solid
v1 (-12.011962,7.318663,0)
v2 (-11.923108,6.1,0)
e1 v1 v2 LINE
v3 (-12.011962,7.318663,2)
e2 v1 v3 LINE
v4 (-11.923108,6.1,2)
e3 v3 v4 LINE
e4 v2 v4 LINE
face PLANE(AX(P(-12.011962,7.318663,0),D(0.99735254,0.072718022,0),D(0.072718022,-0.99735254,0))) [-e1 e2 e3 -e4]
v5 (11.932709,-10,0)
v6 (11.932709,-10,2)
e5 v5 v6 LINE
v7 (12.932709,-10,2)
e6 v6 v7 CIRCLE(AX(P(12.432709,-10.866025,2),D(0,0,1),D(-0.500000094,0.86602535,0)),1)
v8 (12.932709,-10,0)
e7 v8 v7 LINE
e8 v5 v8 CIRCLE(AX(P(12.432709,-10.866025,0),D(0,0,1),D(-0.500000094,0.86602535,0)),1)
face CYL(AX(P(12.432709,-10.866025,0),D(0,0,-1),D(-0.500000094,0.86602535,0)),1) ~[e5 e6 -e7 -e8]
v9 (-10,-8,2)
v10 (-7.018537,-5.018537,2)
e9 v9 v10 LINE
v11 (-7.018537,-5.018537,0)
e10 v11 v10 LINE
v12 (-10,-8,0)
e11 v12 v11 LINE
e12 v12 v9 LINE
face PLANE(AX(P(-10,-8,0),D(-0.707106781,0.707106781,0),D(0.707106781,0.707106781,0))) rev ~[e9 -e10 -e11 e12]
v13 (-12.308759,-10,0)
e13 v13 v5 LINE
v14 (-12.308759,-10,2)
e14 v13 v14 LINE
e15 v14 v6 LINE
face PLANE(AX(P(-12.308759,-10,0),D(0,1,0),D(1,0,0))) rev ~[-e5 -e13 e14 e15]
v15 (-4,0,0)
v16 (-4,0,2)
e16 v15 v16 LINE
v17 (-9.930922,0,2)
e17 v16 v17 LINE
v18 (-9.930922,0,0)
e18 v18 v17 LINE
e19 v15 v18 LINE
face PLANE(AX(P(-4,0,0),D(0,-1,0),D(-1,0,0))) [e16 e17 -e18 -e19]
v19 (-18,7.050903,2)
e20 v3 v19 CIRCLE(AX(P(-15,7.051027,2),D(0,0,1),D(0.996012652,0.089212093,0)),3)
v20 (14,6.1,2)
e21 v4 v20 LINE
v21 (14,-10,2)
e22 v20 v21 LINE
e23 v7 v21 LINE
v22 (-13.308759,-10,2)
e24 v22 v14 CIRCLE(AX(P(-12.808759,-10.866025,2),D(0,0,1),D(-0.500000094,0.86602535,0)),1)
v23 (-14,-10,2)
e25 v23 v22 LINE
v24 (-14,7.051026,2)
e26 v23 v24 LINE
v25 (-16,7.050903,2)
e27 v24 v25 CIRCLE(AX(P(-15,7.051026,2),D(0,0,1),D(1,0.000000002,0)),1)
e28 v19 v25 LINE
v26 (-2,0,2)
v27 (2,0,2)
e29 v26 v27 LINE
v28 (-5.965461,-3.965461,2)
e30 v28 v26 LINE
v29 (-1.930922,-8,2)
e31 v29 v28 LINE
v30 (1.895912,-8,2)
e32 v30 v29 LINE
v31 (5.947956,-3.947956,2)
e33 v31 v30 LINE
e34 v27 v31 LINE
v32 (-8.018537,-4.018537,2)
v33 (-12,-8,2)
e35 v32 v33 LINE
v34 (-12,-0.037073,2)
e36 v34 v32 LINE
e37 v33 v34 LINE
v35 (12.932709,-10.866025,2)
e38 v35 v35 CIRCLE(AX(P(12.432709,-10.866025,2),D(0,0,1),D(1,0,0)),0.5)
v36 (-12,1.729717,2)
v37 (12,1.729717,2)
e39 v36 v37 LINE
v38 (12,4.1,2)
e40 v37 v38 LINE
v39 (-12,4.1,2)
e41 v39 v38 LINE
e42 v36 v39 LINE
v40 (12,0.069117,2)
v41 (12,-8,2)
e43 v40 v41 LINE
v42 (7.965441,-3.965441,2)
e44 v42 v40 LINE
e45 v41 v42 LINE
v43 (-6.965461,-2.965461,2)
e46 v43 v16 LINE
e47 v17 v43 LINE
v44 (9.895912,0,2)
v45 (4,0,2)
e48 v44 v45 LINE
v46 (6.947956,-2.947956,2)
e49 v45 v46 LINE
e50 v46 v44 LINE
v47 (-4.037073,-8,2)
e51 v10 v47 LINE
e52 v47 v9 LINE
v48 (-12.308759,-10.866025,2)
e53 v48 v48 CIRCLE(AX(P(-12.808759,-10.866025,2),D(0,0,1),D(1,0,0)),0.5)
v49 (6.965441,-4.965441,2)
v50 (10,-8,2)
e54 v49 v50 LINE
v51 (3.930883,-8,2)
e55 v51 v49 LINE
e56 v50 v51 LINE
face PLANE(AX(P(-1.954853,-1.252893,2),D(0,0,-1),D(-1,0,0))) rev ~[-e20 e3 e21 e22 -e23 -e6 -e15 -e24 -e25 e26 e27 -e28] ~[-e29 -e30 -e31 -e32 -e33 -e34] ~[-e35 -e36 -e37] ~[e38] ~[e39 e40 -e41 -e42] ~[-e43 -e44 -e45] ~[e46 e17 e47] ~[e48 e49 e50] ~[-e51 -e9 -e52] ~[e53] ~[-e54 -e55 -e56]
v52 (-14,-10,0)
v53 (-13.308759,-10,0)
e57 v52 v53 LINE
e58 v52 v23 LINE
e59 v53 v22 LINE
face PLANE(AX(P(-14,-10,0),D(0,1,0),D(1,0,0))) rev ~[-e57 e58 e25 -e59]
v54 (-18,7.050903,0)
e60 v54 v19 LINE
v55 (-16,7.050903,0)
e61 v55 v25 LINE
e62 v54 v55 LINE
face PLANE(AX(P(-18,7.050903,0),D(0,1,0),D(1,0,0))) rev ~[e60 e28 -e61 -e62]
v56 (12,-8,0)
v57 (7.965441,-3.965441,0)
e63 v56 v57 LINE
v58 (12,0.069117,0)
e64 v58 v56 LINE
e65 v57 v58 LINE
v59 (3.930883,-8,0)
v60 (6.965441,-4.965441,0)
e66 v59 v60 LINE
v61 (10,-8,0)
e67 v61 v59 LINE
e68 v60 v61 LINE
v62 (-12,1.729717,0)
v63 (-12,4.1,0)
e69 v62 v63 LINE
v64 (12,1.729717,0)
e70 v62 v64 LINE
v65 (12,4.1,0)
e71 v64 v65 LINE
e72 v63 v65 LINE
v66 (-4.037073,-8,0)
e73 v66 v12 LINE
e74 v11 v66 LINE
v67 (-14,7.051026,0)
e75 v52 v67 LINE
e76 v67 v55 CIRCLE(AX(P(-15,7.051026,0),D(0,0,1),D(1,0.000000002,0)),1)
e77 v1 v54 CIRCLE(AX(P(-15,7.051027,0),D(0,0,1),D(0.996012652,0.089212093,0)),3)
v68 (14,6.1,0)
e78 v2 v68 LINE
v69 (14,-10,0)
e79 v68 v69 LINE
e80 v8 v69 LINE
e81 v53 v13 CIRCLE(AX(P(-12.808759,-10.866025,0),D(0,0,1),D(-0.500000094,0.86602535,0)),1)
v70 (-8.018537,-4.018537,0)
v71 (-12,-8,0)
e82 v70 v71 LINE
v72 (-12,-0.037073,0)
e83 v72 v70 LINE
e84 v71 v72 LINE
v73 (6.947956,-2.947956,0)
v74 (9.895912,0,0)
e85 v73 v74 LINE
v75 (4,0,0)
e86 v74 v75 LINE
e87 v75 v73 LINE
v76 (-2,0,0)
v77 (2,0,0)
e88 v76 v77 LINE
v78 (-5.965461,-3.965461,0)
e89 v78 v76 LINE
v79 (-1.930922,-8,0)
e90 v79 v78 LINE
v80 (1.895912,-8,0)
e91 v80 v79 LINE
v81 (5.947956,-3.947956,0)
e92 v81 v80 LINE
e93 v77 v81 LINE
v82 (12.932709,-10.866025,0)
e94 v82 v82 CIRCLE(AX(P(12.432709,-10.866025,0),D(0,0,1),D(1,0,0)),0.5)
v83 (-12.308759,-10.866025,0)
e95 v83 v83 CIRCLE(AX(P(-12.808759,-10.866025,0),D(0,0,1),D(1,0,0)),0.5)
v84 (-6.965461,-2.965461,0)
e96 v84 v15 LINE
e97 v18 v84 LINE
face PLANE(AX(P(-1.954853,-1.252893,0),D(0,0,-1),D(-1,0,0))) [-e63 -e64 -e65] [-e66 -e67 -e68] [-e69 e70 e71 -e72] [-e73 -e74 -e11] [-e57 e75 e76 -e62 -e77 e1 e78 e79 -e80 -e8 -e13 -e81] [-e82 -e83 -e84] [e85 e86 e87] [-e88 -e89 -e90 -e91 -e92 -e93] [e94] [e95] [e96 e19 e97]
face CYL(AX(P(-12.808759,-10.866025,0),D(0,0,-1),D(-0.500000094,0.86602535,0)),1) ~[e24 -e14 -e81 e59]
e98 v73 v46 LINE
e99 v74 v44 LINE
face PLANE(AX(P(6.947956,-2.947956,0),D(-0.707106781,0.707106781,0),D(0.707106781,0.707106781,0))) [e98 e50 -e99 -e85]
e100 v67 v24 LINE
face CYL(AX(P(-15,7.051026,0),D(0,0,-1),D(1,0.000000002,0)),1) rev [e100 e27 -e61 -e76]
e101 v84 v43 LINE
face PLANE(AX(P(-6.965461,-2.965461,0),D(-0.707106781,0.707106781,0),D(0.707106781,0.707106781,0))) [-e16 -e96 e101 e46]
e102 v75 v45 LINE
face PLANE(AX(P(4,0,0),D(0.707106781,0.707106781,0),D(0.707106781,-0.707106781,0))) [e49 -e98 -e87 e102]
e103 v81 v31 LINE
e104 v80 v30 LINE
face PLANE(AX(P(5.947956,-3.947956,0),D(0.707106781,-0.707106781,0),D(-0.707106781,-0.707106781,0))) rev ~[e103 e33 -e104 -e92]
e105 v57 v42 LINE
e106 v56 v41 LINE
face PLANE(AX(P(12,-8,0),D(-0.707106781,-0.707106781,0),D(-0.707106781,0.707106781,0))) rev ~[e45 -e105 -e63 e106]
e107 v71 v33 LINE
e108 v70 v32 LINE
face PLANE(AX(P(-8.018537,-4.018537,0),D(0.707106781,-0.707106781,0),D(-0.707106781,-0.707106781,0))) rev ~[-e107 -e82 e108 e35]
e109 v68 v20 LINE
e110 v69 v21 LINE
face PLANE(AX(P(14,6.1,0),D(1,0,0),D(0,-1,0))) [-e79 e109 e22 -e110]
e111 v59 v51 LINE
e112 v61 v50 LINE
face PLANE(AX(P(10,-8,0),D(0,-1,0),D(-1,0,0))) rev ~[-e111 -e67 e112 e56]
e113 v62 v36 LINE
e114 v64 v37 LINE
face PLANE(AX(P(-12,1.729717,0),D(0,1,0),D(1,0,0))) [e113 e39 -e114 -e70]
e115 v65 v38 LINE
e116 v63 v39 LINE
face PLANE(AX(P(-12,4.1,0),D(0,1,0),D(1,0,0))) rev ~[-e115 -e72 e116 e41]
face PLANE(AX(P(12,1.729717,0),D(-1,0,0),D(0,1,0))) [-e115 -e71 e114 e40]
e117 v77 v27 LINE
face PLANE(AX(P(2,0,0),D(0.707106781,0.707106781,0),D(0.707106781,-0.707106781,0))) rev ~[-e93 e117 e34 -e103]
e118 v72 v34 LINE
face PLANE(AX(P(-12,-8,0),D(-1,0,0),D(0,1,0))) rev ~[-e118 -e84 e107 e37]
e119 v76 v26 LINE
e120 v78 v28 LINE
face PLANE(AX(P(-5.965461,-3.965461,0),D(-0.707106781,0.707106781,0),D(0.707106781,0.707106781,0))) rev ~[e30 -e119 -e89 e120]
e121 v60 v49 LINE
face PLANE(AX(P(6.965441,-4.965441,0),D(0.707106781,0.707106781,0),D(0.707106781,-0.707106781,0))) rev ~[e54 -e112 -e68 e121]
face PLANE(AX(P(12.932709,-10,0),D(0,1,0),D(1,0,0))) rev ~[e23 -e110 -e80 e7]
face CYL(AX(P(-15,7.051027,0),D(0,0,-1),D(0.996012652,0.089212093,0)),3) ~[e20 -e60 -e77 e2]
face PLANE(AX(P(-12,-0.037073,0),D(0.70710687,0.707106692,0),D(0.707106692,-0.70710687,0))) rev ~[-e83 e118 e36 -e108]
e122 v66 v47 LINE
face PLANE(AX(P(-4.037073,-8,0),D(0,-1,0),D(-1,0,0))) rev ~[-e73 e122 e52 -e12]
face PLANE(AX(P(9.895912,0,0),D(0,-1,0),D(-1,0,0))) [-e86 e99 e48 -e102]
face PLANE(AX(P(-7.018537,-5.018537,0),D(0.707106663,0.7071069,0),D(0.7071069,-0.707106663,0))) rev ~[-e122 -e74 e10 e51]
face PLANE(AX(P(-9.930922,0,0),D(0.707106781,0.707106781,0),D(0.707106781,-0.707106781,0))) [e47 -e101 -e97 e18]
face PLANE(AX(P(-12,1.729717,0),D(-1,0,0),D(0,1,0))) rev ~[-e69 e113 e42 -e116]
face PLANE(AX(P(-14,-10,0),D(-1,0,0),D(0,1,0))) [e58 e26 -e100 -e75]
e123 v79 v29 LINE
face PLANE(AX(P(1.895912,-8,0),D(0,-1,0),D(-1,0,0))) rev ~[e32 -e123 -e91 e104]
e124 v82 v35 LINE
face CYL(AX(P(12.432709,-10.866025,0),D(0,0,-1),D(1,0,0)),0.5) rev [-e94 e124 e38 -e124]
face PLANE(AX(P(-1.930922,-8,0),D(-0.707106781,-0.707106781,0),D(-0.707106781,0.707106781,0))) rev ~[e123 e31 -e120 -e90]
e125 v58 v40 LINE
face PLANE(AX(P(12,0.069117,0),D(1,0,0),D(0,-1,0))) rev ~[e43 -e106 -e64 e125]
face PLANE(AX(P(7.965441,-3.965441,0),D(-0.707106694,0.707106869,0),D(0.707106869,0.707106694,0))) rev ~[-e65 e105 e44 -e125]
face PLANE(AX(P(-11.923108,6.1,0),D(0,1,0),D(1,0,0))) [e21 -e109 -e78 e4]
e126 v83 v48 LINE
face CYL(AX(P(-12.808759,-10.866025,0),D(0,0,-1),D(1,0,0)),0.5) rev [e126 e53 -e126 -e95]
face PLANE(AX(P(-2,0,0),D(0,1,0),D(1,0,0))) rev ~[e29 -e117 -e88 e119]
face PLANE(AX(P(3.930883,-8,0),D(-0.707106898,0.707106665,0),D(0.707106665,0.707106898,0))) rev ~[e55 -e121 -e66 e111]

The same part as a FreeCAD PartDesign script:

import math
import FreeCAD as App
import Part
import Sketcher

V = App.Vector
Q = App.Units.Quantity


def add_polygon(sketch, points):
    """Adds a closed chain of lines whose ends are joined by coincident constraints."""
    first, n = sketch.GeometryCount, len(points)
    for a, b in zip(points, points[1:] + points[:1]):
        sketch.addGeometry(Part.LineSegment(App.Vector(*a, 0), App.Vector(*b, 0)), False)
    for i in range(n):
        sketch.addConstraint(Sketcher.Constraint("Coincident", first + i, 2, first + (i + 1) % n, 1))

doc = App.newDocument("Part")
params = doc.addObject("Spreadsheet::Sheet", "Params")
for row, (alias, value) in enumerate([
    ("sketch1_diameter", "1 mm"),
    ("sketch1_radius", "3 mm"),
    ("sketch1_radius2", "1 mm"),
    ("sketch1_width", "4 mm"),
    ("sketch1_width2", "24 mm"),
    ("pad1_length", "2 mm"),
], start=1):
    params.set(f"A{row}", alias)
    params.set(f"B{row}", "=" + value)
    params.setAlias(f"B{row}", alias)

body = doc.addObject("PartDesign::Body", "Body")

# Sketch on XY plane
sketch1 = doc.addObject("Sketcher::SketchObject", "Sketch")
body.addObject(sketch1)
sketch1.AttachmentSupport = (doc.XY_Plane, [""])
sketch1.MapMode = "FlatFace"
sketch1.addGeometry(Part.LineSegment(V(14, 6.1, 0), V(-11.9, 6.1, 0)), False)  # 0
sketch1.addGeometry(Part.LineSegment(V(-11.9, 6.1, 0), V(-12, 7.3, 0)), False)  # 1
sketch1.addGeometry(Part.ArcOfCircle(Part.Circle(V(-15, 7.1, 0), V(0, 0, 1), 3), math.radians(5), math.radians(180)), False)  # 2
sketch1.addGeometry(Part.LineSegment(V(-18, 7.1, 0), V(-16, 7.1, 0)), False)  # 3
sketch1.addGeometry(Part.ArcOfCircle(Part.Circle(V(-15, 7.1, 0), V(0, 0, 1), 1), math.radians(0), math.radians(180)), False)  # 4
sketch1.addGeometry(Part.LineSegment(V(-14, 7.1, 0), V(-14, -10, 0)), False)  # 5
sketch1.addGeometry(Part.LineSegment(V(-14, -10, 0), V(-13.3, -10, 0)), False)  # 6
sketch1.addGeometry(Part.ArcOfCircle(Part.Circle(V(-12.8, -10.9, 0), V(0, 0, 1), 1), math.radians(120), math.radians(420)), False)  # 7
sketch1.addGeometry(Part.LineSegment(V(-12.3, -10, 0), V(11.9, -10, 0)), False)  # 8
sketch1.addGeometry(Part.ArcOfCircle(Part.Circle(V(12.4, -10.9, 0), V(0, 0, 1), 1), math.radians(120), math.radians(420)), False)  # 9
sketch1.addGeometry(Part.LineSegment(V(12.9, -10, 0), V(14, -10, 0)), False)  # 10
sketch1.addGeometry(Part.LineSegment(V(14, -10, 0), V(14, 6.1, 0)), False)  # 11
sketch1.addGeometry(Part.Circle(V(12.4, -10.9, 0), V(0, 0, 1), 0.5), False)  # 12
add_polygon(sketch1, [(3.9, -8), (7, -5), (10, -8)])  # lines 13-15
add_polygon(sketch1, [(8, -4), (12, 0.1), (12, -8)])  # lines 16-18
add_polygon(sketch1, [(2, 0), (5.9, -3.9), (1.9, -8), (-1.9, -8), (-6, -4), (-2, 0)])  # lines 19-24
sketch1.addGeometry(Part.Circle(V(-12.8, -10.9, 0), V(0, 0, 1), 0.5), False)  # 25
add_polygon(sketch1, [(-10, -8), (-7, -5), (-4, -8)])  # lines 26-28
add_polygon(sketch1, [(-12, -8), (-12, 0), (-8, -4)])  # lines 29-31
add_polygon(sketch1, [(4, 0), (9.9, 0), (6.9, -2.9)])  # lines 32-34
add_polygon(sketch1, [(-12, 1.7), (-12, 4.1), (12, 4.1), (12, 1.7)])  # lines 35-38
add_polygon(sketch1, [(-9.9, 0), (-4, 0), (-7, -3)])  # lines 39-41
sketch1.addConstraint(Sketcher.Constraint("Coincident", 0, 2, 1, 1))
sketch1.addConstraint(Sketcher.Constraint("Coincident", 1, 2, 2, 1))
sketch1.addConstraint(Sketcher.Constraint("Coincident", 2, 2, 3, 1))
sketch1.addConstraint(Sketcher.Constraint("Coincident", 3, 2, 4, 2))
sketch1.addConstraint(Sketcher.Constraint("Tangent", 4, 1, 5, 1))
sketch1.addConstraint(Sketcher.Constraint("Coincident", 5, 2, 6, 1))
sketch1.addConstraint(Sketcher.Constraint("Coincident", 6, 2, 7, 1))
sketch1.addConstraint(Sketcher.Constraint("Coincident", 7, 2, 8, 1))
sketch1.addConstraint(Sketcher.Constraint("Coincident", 8, 2, 9, 1))
sketch1.addConstraint(Sketcher.Constraint("Coincident", 9, 2, 10, 1))
sketch1.addConstraint(Sketcher.Constraint("Coincident", 10, 2, 11, 1))
sketch1.addConstraint(Sketcher.Constraint("Coincident", 11, 2, 0, 1))
sketch1.addConstraint(Sketcher.Constraint("Horizontal", 0))
sketch1.addConstraint(Sketcher.Constraint("Horizontal", 3))
sketch1.addConstraint(Sketcher.Constraint("Vertical", 5))
sketch1.addConstraint(Sketcher.Constraint("Horizontal", 6))
sketch1.addConstraint(Sketcher.Constraint("Horizontal", 8))
sketch1.addConstraint(Sketcher.Constraint("Horizontal", 10))
sketch1.addConstraint(Sketcher.Constraint("Vertical", 11))
sketch1.addConstraint(Sketcher.Constraint("Horizontal", 15))
sketch1.addConstraint(Sketcher.Constraint("Vertical", 17))
sketch1.addConstraint(Sketcher.Constraint("Horizontal", 21))
sketch1.addConstraint(Sketcher.Constraint("Horizontal", 24))
sketch1.addConstraint(Sketcher.Constraint("Horizontal", 28))
sketch1.addConstraint(Sketcher.Constraint("Vertical", 29))
sketch1.addConstraint(Sketcher.Constraint("Horizontal", 32))
sketch1.addConstraint(Sketcher.Constraint("Vertical", 35))
sketch1.addConstraint(Sketcher.Constraint("Horizontal", 36))
sketch1.addConstraint(Sketcher.Constraint("Vertical", 37))
sketch1.addConstraint(Sketcher.Constraint("Horizontal", 38))
sketch1.addConstraint(Sketcher.Constraint("Horizontal", 39))
sketch1.addConstraint(Sketcher.Constraint("Coincident", 4, 3, 2, 3))
sketch1.addConstraint(Sketcher.Constraint("Coincident", 12, 3, 9, 3))
sketch1.addConstraint(Sketcher.Constraint("Coincident", 25, 3, 7, 3))
sketch1.addConstraint(Sketcher.Constraint("Equal", 4, 7))
sketch1.addConstraint(Sketcher.Constraint("Equal", 7, 9))
sketch1.addConstraint(Sketcher.Constraint("Equal", 12, 25))
sketch1.addConstraint(Sketcher.Constraint("Symmetric", 23, 2, 24, 2, -1, 1))
sketch1.addConstraint(Sketcher.Constraint("Symmetric", 34, 2, 39, 2, -1, 1))
sketch1.addConstraint(Sketcher.Constraint("Symmetric", 5, 2, 10, 2, -2))
sketch1.addConstraint(Sketcher.Constraint("Symmetric", 14, 2, 28, 2, -2))
sketch1.addConstraint(Sketcher.Constraint("Symmetric", 17, 2, 31, 2, -2))
sketch1.addConstraint(Sketcher.Constraint("PointOnObject", 32, 2, -1))
sketch1.addConstraint(Sketcher.Constraint("Perpendicular", 13, 14))
sketch1.addConstraint(Sketcher.Constraint("Perpendicular", 14, 16))
sketch1.addConstraint(Sketcher.Constraint("Perpendicular", 16, 18))
sketch1.addConstraint(Sketcher.Constraint("Parallel", 18, 19))
sketch1.addConstraint(Sketcher.Constraint("Perpendicular", 19, 20))
sketch1.addConstraint(Sketcher.Constraint("Perpendicular", 20, 22))
sketch1.addConstraint(Sketcher.Constraint("Perpendicular", 22, 23))
sketch1.addConstraint(Sketcher.Constraint("Parallel", 23, 26))
sketch1.addConstraint(Sketcher.Constraint("Perpendicular", 26, 27))
sketch1.addConstraint(Sketcher.Constraint("Parallel", 27, 30))
sketch1.addConstraint(Sketcher.Constraint("Perpendicular", 30, 31))
sketch1.addConstraint(Sketcher.Constraint("Parallel", 31, 33))
sketch1.addConstraint(Sketcher.Constraint("Perpendicular", 33, 34))
sketch1.addConstraint(Sketcher.Constraint("Perpendicular", 34, 40))
sketch1.addConstraint(Sketcher.Constraint("Perpendicular", 40, 41))
sketch1.addConstraint(Sketcher.Constraint("Horizontal", 7, 3, 9, 3))
sketch1.addConstraint(Sketcher.Constraint("Horizontal", 6, 2, 7, 2))
sketch1.addConstraint(Sketcher.Constraint("Horizontal", 15, 2, 17, 2))
sketch1.addConstraint(Sketcher.Constraint("Horizontal", 17, 2, 20, 2))
sketch1.addConstraint(Sketcher.Constraint("Vertical", 31, 2, 35, 2))
sketch1.addConstraint(Sketcher.Constraint("Vertical", 17, 2, 36, 2))
sketch1.addConstraint(Sketcher.Constraint("Equal", 13, 14))
sketch1.addConstraint(Sketcher.Constraint("Diameter", 12, Q("1 mm")))
sketch1.addConstraint(Sketcher.Constraint("Radius", 2, Q("3 mm")))
sketch1.addConstraint(Sketcher.Constraint("Radius", 4, Q("1 mm")))
sketch1.addConstraint(Sketcher.Constraint("DistanceX", 24, 1, 24, 2, Q("4 mm")))
sketch1.addConstraint(Sketcher.Constraint("DistanceX", 36, 1, 36, 2, Q("24 mm")))
sketch1.addConstraint(Sketcher.Constraint("DistanceY", 11, 1, 11, 2, Q("16.1 mm")))
sketch1.addConstraint(Sketcher.Constraint("DistanceX", 2, 3, -1, 1, Q("15 mm")))
sketch1.addConstraint(Sketcher.Constraint("DistanceY", 5, 2, -1, 1, Q("10 mm")))
sketch1.addConstraint(Sketcher.Constraint("DistanceX", -1, 1, 14, 2, Q("10 mm")))
sketch1.addConstraint(Sketcher.Constraint("DistanceY", 14, 2, -1, 1, Q("8 mm")))
sketch1.addConstraint(Sketcher.Constraint("DistanceX", -1, 1, 34, 2, Q("4 mm")))
sketch1.addConstraint(Sketcher.Constraint("DistanceX", 6, 2, 7, 2, Q("1 mm")))
sketch1.addConstraint(Sketcher.Constraint("DistanceX", 13, 2, 18, 2, Q("1 mm")))
sketch1.addConstraint(Sketcher.Constraint("DistanceX", 30, 2, 26, 2, Q("1 mm")))
sketch1.addConstraint(Sketcher.Constraint("DistanceX", 19, 2, 33, 2, Q("1 mm")))
sketch1.addConstraint(Sketcher.Constraint("DistanceY", 35, 2, 0, 2, Q("2 mm")))
sketch1.addConstraint(Sketcher.Constraint("DistanceX", 40, 2, 22, 2, Q("1 mm")))
sketch1.addConstraint(Sketcher.Constraint("Distance", 22, Q("5.7057 mm")))
sketch1.addConstraint(Sketcher.Constraint("DistanceX", 6, 1, 6, 2, Q("0.691241 mm")))
sketch1.addConstraint(Sketcher.Constraint("DistanceX", 10, 1, 10, 2, Q("1.067291 mm")))
sketch1.addConstraint(Sketcher.Constraint("DistanceX", 32, 1, 32, 2, Q("5.895912 mm")))
sketch1.addConstraint(Sketcher.Constraint("DistanceY", 29, 2, 4, 1, Q("7.088099 mm")))
sketch1.addConstraint(Sketcher.Constraint("DistanceY", 16, 2, 37, 2, Q("1.6606 mm")))
sketch1.addConstraint(Sketcher.Constraint("Distance", 18, Q("5.705728 mm")))
sketch1.addConstraint(Sketcher.Constraint("Distance", 30, Q("5.63064 mm")))
sketch1.addConstraint(Sketcher.Constraint("DistanceX", 0, 2, 0, 1, Q("25.923108 mm")))
sketch1.addConstraint(Sketcher.Constraint("DistanceX", 4, 3, 1, 2, Q("2.988038 mm")))
sketch1.addConstraint(Sketcher.Constraint("DistanceY", 2, 2, 1, 2, Q("0.26776 mm")))
sketch1.setExpression("Constraints[93]", "Params.sketch1_diameter")
sketch1.setExpression("Constraints[94]", "Params.sketch1_radius")
sketch1.setExpression("Constraints[95]", "Params.sketch1_radius2")
sketch1.setExpression("Constraints[96]", "Params.sketch1_width")
sketch1.setExpression("Constraints[97]", "Params.sketch1_width2")
pad1 = doc.addObject("PartDesign::Pad", "Pad")
body.addObject(pad1)
pad1.Profile = sketch1
pad1.setExpression("Length", "Params.pad1_length")

doc.recompute()
